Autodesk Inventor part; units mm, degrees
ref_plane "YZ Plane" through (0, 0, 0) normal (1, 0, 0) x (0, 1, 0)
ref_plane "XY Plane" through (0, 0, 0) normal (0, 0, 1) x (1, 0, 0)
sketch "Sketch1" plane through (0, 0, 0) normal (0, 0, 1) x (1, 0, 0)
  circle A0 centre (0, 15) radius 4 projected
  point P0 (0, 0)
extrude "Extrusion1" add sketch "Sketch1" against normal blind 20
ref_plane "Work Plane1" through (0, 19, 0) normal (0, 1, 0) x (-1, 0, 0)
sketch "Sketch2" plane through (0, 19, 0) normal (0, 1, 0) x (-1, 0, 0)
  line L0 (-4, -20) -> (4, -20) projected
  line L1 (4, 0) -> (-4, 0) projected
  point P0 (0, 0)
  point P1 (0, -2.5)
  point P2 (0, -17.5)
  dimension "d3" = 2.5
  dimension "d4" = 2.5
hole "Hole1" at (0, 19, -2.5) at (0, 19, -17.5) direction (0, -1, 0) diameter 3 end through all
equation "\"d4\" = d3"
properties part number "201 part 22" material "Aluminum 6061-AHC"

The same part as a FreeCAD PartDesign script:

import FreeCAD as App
import Part
import Sketcher

V = App.Vector
Q = App.Units.Quantity

doc = App.newDocument("Part")
body = doc.addObject("PartDesign::Body", "Body")

# Sketch on XY plane
sketch1 = body.newObject("Sketcher::SketchObject", "Sketch")
sketch1.AttachmentSupport = (doc.getObject("XY_Plane"), [""])
sketch1.MapMode = "FlatFace"
sketch1.addGeometry(Part.Circle(V(0, 15, 0), V(0, 0, 1), 4), False)
sketch1.addConstraint(Sketcher.Constraint("PointOnObject", 0, 3, -2))
sketch1.addConstraint(Sketcher.Constraint("Diameter", 0, Q("8 mm")))
sketch1.addConstraint(Sketcher.Constraint("DistanceY", -1, 1, 0, 3, Q("15 mm")))
pad1 = body.newObject("PartDesign::Pad", "Pad")
pad1.Profile = sketch1
pad1.Length = 20
pad1.Reversed = True

# Sketch on XZ plane
sketch2 = body.newObject("Sketcher::SketchObject", "Sketch001")
sketch2.AttachmentSupport = (doc.getObject("XZ_Plane"), [""])
sketch2.MapMode = "FlatFace"
sketch2.AttachmentOffset = App.Placement(V(0, 0, -19), App.Rotation())
sketch2.addGeometry(Part.Circle(V(0, -2.5, 0), V(0, 0, 1), 1.5), False)
sketch2.addGeometry(Part.Circle(V(0, -17.5, 0), V(0, 0, 1), 1.5), False)
sketch2.addConstraint(Sketcher.Constraint("Equal", 0, 1))
sketch2.addConstraint(Sketcher.Constraint("PointOnObject", 0, 3, -2))
sketch2.addConstraint(Sketcher.Constraint("PointOnObject", 1, 3, -2))
sketch2.addConstraint(Sketcher.Constraint("Diameter", 0, Q("3 mm")))
sketch2.addConstraint(Sketcher.Constraint("DistanceY", 1, 3, 0, 3, Q("15 mm")))
sketch2.addConstraint(Sketcher.Constraint("DistanceY", 0, 3, -1, 1, Q("2.5 mm")))
doc.recompute()
hole = body.newObject("PartDesign::Hole", "Hole")
hole.Profile = sketch2
hole.ThreadType = "None"
hole.Diameter = 3
hole.DepthType = "ThroughAll"
hole.Reversed = True

doc.recompute()
